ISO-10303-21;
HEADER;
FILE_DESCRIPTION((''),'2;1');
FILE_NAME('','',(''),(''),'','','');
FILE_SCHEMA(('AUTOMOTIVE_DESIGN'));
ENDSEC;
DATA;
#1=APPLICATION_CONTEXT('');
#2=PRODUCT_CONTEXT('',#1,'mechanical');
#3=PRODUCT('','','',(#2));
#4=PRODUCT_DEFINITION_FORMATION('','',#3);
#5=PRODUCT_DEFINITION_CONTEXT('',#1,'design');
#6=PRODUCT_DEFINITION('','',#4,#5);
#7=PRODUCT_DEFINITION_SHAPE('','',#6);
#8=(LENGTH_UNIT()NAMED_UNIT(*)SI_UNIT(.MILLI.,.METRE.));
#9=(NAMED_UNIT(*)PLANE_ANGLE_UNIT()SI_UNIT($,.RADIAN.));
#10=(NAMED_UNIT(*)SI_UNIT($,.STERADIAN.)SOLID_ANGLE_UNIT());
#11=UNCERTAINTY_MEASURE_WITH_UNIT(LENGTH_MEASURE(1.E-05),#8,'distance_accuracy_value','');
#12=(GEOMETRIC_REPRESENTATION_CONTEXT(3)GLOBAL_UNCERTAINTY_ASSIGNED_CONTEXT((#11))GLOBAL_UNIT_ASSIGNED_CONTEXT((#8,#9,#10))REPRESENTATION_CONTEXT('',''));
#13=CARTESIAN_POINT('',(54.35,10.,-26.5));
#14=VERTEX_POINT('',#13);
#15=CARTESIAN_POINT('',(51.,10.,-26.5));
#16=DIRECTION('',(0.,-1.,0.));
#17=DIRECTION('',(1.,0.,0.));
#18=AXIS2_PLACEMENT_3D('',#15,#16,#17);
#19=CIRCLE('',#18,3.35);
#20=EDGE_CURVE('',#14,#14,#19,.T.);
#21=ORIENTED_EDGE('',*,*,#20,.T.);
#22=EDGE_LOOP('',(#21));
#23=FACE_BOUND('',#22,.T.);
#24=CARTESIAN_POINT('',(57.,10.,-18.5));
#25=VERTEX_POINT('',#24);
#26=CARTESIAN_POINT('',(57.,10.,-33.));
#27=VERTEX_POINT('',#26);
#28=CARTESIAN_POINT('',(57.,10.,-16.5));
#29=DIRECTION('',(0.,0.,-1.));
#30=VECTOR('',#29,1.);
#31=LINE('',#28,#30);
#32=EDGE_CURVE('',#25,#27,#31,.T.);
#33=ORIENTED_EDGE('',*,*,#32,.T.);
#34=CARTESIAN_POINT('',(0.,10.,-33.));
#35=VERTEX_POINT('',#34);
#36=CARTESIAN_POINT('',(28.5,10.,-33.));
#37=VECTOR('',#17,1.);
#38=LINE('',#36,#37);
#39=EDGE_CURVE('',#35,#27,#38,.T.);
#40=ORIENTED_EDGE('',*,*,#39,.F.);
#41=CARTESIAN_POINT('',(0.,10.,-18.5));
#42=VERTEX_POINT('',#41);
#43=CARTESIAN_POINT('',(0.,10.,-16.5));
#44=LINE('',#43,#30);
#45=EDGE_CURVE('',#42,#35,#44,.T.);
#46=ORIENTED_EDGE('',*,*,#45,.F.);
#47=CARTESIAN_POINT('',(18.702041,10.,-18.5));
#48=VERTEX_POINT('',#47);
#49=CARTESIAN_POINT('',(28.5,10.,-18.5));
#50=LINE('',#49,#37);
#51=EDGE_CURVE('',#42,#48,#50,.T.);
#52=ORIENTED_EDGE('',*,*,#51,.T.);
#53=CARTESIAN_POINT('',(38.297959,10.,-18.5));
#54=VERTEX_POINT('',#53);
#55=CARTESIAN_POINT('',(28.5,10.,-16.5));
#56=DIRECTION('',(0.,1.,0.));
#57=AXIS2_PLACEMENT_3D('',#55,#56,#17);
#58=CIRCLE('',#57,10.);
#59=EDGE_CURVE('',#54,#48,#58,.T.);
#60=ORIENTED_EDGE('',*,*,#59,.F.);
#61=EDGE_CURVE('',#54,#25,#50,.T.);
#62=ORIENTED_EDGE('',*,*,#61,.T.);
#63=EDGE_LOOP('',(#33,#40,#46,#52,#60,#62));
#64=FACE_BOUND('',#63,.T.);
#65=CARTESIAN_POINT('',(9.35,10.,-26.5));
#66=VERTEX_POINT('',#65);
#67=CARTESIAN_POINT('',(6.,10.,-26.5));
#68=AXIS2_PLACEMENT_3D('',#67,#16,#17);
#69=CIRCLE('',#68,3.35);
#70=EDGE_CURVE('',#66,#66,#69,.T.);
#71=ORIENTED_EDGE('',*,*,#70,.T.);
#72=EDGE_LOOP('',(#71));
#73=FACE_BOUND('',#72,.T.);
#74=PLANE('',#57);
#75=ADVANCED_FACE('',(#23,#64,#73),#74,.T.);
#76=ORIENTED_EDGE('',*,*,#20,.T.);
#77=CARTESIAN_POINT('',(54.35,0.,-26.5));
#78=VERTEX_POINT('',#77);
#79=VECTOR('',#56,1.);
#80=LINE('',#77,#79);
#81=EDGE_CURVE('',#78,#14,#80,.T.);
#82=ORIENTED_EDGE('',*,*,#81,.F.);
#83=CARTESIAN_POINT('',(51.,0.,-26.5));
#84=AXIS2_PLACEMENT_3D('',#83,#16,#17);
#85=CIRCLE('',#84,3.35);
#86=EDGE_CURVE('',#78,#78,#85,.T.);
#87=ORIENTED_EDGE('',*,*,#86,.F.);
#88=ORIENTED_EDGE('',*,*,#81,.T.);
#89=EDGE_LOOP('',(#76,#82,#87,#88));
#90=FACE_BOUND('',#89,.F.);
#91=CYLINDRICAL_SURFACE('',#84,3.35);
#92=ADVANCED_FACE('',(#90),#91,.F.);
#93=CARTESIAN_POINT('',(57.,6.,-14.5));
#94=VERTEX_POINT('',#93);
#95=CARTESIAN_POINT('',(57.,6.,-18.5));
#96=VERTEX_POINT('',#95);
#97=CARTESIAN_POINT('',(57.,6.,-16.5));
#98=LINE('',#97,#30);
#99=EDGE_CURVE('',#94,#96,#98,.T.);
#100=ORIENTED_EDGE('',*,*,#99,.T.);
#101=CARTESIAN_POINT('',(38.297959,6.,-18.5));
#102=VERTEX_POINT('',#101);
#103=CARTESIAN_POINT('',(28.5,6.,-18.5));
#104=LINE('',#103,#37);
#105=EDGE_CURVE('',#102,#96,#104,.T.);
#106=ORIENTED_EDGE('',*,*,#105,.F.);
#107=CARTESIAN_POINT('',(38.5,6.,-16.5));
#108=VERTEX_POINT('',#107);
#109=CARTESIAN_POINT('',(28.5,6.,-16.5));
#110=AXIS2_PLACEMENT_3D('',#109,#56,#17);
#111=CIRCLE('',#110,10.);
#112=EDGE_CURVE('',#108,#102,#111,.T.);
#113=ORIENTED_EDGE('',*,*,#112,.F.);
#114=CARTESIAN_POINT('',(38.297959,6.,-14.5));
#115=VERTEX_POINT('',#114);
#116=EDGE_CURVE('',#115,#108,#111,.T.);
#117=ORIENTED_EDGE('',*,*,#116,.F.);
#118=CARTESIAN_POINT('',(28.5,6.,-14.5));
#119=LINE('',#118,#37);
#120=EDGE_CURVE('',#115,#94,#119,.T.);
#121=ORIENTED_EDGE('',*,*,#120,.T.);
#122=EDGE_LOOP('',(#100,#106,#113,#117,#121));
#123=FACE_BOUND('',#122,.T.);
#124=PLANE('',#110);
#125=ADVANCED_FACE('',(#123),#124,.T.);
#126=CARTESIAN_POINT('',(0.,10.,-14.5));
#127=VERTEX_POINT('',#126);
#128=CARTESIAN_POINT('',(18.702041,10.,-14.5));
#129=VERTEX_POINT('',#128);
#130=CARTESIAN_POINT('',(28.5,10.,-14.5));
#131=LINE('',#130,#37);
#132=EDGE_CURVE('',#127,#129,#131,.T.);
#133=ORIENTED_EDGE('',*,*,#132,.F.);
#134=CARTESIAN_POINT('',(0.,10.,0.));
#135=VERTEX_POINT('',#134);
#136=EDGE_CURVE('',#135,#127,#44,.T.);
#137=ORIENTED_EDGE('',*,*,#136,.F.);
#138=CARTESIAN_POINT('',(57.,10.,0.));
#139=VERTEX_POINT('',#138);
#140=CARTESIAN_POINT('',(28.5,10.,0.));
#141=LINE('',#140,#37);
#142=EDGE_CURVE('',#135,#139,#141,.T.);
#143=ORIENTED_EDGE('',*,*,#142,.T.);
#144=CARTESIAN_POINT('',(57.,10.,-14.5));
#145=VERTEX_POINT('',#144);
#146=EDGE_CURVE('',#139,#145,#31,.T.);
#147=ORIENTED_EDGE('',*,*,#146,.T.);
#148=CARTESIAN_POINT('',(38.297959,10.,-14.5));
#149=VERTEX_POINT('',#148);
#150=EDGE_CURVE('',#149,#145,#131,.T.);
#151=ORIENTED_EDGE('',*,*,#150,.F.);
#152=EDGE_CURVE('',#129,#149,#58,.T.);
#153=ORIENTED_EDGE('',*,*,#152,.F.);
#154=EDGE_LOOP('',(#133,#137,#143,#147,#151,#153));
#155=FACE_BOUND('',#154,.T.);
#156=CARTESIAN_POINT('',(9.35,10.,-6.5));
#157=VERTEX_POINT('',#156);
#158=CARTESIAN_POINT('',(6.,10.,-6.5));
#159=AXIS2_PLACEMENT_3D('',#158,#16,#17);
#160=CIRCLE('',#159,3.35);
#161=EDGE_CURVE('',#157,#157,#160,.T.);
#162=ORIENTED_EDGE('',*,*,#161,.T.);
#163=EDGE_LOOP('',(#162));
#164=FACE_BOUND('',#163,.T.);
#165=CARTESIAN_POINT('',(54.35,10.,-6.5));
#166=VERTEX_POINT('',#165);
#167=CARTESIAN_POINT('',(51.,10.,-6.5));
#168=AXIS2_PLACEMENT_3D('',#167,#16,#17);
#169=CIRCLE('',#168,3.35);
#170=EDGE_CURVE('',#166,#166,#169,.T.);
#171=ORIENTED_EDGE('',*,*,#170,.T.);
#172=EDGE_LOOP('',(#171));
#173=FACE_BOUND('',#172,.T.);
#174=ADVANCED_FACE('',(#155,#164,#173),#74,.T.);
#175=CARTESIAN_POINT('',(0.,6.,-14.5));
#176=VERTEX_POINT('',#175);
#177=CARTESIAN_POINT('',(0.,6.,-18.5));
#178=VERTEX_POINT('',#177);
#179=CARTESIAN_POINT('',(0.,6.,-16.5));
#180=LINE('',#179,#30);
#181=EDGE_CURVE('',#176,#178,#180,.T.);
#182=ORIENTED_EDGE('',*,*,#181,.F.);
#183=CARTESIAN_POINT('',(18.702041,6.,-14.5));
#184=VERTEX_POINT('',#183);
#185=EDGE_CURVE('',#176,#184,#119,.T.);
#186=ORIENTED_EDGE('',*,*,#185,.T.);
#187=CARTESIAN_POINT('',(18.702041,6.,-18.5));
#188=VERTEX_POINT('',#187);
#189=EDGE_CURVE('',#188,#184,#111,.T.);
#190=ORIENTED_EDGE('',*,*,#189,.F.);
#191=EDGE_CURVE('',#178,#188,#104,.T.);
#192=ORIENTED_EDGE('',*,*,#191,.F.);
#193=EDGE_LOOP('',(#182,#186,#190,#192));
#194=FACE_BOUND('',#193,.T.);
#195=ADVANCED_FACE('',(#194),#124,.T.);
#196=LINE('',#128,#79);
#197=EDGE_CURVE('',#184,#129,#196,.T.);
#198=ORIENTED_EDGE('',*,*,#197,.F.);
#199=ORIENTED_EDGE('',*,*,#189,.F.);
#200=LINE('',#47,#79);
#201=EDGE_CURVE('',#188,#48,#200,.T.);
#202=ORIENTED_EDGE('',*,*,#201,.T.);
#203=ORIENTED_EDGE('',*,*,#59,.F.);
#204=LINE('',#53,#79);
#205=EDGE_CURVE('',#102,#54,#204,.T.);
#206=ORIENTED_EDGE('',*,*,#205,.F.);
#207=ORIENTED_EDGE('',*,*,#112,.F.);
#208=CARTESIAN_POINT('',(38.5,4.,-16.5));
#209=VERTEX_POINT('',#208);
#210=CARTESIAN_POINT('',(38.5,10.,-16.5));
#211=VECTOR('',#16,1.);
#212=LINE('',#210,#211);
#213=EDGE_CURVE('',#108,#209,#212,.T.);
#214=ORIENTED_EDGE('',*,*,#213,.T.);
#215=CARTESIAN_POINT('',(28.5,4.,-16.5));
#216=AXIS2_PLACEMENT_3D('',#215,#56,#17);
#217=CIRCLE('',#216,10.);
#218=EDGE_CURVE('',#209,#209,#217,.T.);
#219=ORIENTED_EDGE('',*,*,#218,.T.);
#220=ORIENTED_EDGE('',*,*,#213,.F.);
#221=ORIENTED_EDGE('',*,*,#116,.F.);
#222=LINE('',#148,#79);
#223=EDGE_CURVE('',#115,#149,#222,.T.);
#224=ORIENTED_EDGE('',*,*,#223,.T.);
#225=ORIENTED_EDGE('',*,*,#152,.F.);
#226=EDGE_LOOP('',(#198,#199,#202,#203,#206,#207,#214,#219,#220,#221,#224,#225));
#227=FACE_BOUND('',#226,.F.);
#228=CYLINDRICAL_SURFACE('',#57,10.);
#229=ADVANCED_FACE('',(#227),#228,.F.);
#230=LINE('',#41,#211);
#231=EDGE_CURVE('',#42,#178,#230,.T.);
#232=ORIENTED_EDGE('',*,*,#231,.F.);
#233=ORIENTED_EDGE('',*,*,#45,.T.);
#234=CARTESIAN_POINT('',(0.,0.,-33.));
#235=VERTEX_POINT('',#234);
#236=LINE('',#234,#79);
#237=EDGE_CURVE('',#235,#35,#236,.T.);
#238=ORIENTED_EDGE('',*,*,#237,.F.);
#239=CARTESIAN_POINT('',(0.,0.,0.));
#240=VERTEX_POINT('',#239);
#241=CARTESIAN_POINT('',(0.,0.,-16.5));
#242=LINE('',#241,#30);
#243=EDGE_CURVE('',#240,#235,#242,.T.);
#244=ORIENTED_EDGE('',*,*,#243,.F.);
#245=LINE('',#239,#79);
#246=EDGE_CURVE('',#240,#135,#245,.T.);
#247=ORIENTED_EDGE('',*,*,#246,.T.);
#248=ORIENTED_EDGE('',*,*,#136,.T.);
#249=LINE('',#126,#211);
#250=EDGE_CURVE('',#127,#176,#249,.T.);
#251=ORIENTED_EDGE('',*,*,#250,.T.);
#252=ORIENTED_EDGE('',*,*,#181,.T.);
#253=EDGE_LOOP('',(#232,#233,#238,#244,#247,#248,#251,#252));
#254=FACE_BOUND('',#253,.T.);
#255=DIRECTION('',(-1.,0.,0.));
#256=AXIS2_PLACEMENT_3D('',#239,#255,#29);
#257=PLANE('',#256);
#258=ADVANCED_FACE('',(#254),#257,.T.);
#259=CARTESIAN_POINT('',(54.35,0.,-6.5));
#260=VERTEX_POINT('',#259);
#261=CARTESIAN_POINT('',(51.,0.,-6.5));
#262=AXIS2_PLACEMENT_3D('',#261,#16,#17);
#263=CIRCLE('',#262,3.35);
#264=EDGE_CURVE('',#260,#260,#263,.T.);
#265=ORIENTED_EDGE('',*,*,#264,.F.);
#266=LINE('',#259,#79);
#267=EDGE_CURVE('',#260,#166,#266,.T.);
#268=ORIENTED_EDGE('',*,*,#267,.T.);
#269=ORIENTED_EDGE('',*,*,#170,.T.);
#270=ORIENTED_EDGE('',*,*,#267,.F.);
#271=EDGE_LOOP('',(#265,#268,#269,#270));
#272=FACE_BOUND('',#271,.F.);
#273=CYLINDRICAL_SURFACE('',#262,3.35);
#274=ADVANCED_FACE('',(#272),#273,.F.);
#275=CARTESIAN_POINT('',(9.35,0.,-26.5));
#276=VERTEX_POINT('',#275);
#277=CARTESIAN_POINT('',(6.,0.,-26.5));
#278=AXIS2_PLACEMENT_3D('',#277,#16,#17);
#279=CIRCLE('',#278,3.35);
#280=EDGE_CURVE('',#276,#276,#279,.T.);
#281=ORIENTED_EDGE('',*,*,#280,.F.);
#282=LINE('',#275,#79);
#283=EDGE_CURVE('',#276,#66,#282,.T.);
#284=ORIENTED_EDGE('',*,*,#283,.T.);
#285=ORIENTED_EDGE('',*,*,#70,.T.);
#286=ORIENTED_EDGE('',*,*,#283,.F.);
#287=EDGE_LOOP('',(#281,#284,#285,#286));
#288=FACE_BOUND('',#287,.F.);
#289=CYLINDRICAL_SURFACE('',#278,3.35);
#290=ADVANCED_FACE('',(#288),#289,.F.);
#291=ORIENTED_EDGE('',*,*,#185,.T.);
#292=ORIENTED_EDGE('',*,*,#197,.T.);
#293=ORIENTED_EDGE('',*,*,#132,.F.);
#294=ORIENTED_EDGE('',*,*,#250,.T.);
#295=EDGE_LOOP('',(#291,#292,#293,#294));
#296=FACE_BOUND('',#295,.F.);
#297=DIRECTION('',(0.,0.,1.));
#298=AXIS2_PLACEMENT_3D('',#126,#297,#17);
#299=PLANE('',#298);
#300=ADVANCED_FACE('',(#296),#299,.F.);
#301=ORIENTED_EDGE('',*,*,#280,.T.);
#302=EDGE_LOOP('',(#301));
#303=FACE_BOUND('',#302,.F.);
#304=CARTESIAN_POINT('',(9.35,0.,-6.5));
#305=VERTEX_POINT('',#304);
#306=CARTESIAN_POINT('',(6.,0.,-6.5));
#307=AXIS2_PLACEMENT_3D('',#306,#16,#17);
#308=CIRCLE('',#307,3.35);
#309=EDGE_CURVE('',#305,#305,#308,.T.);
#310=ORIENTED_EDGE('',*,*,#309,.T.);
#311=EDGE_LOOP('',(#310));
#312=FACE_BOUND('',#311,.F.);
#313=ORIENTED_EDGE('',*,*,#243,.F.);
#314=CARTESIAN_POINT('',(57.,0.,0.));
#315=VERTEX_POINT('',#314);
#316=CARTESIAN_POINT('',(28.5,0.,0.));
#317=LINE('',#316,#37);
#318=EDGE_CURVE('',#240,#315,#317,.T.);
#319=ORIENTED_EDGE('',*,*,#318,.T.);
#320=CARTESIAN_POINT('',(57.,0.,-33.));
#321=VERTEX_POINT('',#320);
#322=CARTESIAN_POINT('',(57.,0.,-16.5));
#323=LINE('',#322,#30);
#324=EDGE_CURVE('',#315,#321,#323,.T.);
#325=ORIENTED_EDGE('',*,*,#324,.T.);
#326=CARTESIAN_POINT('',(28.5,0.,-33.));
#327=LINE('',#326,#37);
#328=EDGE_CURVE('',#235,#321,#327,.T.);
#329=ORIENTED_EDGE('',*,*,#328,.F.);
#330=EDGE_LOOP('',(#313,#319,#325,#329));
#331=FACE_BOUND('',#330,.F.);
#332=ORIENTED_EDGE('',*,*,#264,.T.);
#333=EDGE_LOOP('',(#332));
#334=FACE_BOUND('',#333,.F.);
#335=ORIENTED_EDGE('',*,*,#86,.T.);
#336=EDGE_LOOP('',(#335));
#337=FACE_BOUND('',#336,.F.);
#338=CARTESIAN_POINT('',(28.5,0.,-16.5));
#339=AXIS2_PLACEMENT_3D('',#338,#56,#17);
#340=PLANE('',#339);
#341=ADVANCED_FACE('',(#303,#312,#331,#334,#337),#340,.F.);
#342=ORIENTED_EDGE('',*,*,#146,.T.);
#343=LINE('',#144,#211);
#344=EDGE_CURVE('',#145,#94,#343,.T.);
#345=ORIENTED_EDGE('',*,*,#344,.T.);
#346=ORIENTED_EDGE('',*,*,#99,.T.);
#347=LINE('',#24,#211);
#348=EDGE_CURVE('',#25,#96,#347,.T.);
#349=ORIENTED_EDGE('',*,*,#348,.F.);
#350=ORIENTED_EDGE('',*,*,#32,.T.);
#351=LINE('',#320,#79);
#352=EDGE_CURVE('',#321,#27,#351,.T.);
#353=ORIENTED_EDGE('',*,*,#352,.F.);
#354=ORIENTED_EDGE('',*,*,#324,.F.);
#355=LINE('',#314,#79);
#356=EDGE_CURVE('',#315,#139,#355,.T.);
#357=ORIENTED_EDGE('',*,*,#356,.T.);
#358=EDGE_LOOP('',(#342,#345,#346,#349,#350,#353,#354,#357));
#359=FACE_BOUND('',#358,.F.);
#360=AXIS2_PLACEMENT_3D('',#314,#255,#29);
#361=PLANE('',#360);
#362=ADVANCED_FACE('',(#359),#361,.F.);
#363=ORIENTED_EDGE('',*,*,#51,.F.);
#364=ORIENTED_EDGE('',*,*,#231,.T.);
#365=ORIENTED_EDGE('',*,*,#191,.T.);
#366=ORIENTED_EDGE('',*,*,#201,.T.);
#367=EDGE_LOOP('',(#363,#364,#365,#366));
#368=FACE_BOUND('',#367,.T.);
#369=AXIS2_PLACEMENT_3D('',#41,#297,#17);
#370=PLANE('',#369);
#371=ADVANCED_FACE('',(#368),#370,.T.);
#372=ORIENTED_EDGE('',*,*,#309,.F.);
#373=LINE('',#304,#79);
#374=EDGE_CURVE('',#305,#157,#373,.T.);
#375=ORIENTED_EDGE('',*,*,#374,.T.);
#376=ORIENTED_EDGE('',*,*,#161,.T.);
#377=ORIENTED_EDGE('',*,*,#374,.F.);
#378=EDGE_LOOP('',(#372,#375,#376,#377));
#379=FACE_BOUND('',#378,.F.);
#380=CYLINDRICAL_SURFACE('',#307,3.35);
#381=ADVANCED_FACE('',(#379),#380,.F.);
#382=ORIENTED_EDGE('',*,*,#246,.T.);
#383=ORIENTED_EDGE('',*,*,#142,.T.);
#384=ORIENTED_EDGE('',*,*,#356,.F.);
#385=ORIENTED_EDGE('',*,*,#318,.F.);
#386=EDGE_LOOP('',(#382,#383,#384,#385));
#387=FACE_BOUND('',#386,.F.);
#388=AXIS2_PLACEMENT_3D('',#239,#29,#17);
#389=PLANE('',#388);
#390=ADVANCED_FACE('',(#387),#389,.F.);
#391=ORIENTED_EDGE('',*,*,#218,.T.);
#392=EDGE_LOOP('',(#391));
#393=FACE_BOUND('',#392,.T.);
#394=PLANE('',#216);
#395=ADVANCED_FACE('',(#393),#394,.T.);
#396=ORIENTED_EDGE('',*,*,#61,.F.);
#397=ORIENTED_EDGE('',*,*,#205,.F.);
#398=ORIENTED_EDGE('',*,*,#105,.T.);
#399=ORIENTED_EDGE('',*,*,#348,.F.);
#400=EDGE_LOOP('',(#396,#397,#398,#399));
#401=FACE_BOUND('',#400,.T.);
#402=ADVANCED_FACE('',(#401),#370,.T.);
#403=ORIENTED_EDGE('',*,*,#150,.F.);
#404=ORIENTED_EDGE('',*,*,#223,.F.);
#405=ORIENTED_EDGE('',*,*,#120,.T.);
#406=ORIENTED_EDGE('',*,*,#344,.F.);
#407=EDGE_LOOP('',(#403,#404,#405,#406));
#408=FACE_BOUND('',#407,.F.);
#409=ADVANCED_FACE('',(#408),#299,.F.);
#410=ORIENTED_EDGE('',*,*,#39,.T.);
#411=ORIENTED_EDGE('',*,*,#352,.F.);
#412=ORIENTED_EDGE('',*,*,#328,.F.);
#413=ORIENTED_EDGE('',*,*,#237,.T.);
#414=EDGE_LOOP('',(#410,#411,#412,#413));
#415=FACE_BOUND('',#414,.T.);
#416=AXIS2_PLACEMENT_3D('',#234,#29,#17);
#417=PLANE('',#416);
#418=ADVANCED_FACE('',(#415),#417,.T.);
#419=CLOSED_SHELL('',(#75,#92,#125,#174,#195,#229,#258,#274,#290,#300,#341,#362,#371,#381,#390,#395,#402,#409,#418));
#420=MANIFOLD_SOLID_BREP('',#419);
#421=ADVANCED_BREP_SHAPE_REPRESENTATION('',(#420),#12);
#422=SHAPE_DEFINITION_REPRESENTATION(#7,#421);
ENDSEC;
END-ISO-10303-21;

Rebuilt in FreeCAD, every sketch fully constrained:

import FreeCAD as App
import Part
import Sketcher
from FreeCAD import Vector


def add_polygon(sketch, points):
    """Adds a closed chain of lines whose ends are joined by coincident constraints."""
    first, n = sketch.GeometryCount, len(points)
    for a, b in zip(points, points[1:] + points[:1]):
        sketch.addGeometry(Part.LineSegment(App.Vector(*a, 0), App.Vector(*b, 0)), False)
    for i in range(n):
        sketch.addConstraint(Sketcher.Constraint("Coincident", first + i, 2, first + (i + 1) % n, 1))

doc = App.newDocument("Part")
params = doc.addObject("Spreadsheet::Sheet", "Params")
for row, (alias, value) in enumerate([
    ("sketch1_width", "57 mm"),
    ("sketch1_height", "33 mm"),
    ("pad1_length", "10 mm"),
    ("sketch2_diameter", "6.7 mm"),
    ("sketch3_diameter", "6.7 mm"),
    ("sketch4_diameter", "6.7 mm"),
    ("sketch5_diameter", "6.7 mm"),
    ("sketch6_width", "57 mm"),
    ("sketch6_height", "4 mm"),
    ("pocket5_length", "4 mm"),
    ("sketch7_diameter", "20 mm"),
    ("pocket6_length", "6 mm"),
], start=1):
    params.set(f"A{row}", alias)
    params.set(f"B{row}", "=" + value)
    params.setAlias(f"B{row}", alias)

body = doc.addObject("PartDesign::Body", "Body")

# Sketch on XZ plane
sketch1 = body.newObject("Sketcher::SketchObject", "Sketch")
sketch1.AttachmentSupport = (doc.getObject("XZ_Plane"), [""])
sketch1.MapMode = "FlatFace"
add_polygon(sketch1, [(0, -33), (0, 0), (57, 0), (57, -33)])  # lines 0-3
sketch1.addConstraint([
    Sketcher.Constraint("Vertical", 0),
    Sketcher.Constraint("Horizontal", 1),
    Sketcher.Constraint("Vertical", 2),
    Sketcher.Constraint("Horizontal", 3),
    Sketcher.Constraint("Coincident", 0, 2, -1, 1),
    Sketcher.Constraint("DistanceX", 1, 1, 1, 2, 57.0),
    Sketcher.Constraint("DistanceY", 0, 1, 0, 2, 33.0),
])
sketch1.setExpression("Constraints[9]", "Params.sketch1_width")
sketch1.setExpression("Constraints[10]", "Params.sketch1_height")
pad1 = body.newObject("PartDesign::Pad", "Pad")
pad1.Profile = sketch1
pad1.setExpression("Length", "Params.pad1_length")
pad1.Reversed = True

# Sketch on XZ plane
sketch2 = body.newObject("Sketcher::SketchObject", "Sketch001")
sketch2.AttachmentSupport = (doc.getObject("XZ_Plane"), [""])
sketch2.MapMode = "FlatFace"
sketch2.addGeometry(Part.Circle(Vector(6, -6.5, 0), Vector(0, 0, 1), 3.4), False)
sketch2.addConstraint([
    Sketcher.Constraint("Diameter", 0, 6.7),
    Sketcher.Constraint("DistanceX", -1, 1, 0, 3, 6.0),
    Sketcher.Constraint("DistanceY", 0, 3, -1, 1, 6.5),
])
sketch2.setExpression("Constraints[0]", "Params.sketch2_diameter")
pocket1 = body.newObject("PartDesign::Pocket", "Pocket")
pocket1.Profile = sketch2
pocket1.Type = "ThroughAll"

# Sketch on XZ plane
sketch3 = body.newObject("Sketcher::SketchObject", "Sketch002")
sketch3.AttachmentSupport = (doc.getObject("XZ_Plane"), [""])
sketch3.MapMode = "FlatFace"
sketch3.addGeometry(Part.Circle(Vector(51, -26.5, 0), Vector(0, 0, 1), 3.4), False)
sketch3.addConstraint([
    Sketcher.Constraint("Diameter", 0, 6.7),
    Sketcher.Constraint("DistanceX", -1, 1, 0, 3, 51.0),
    Sketcher.Constraint("DistanceY", 0, 3, -1, 1, 26.5),
])
sketch3.setExpression("Constraints[0]", "Params.sketch3_diameter")
pocket2 = body.newObject("PartDesign::Pocket", "Pocket001")
pocket2.Profile = sketch3
pocket2.Type = "ThroughAll"

# Sketch on XZ plane
sketch4 = body.newObject("Sketcher::SketchObject", "Sketch003")
sketch4.AttachmentSupport = (doc.getObject("XZ_Plane"), [""])
sketch4.MapMode = "FlatFace"
sketch4.addGeometry(Part.Circle(Vector(6, -26.5, 0), Vector(0, 0, 1), 3.4), False)
sketch4.addConstraint([
    Sketcher.Constraint("Diameter", 0, 6.7),
    Sketcher.Constraint("DistanceX", -1, 1, 0, 3, 6.0),
    Sketcher.Constraint("DistanceY", 0, 3, -1, 1, 26.5),
])
sketch4.setExpression("Constraints[0]", "Params.sketch4_diameter")
pocket3 = body.newObject("PartDesign::Pocket", "Pocket002")
pocket3.Profile = sketch4
pocket3.Type = "ThroughAll"

# Sketch on XZ plane
sketch5 = body.newObject("Sketcher::SketchObject", "Sketch004")
sketch5.AttachmentSupport = (doc.getObject("XZ_Plane"), [""])
sketch5.MapMode = "FlatFace"
sketch5.addGeometry(Part.Circle(Vector(51, -6.5, 0), Vector(0, 0, 1), 3.4), False)
sketch5.addConstraint([
    Sketcher.Constraint("Diameter", 0, 6.7),
    Sketcher.Constraint("DistanceX", -1, 1, 0, 3, 51.0),
    Sketcher.Constraint("DistanceY", 0, 3, -1, 1, 6.5),
])
sketch5.setExpression("Constraints[0]", "Params.sketch5_diameter")
pocket4 = body.newObject("PartDesign::Pocket", "Pocket003")
pocket4.Profile = sketch5
pocket4.Type = "ThroughAll"

# Sketch on XZ plane
sketch6 = body.newObject("Sketcher::SketchObject", "Sketch005")
sketch6.AttachmentSupport = (doc.getObject("XZ_Plane"), [""])
sketch6.MapMode = "FlatFace"
sketch6.AttachmentOffset = App.Placement(Vector(0, 0, -10), App.Rotation())
add_polygon(sketch6, [(0, -18.5), (0, -14.5), (57, -14.5), (57, -18.5)])  # lines 0-3
sketch6.addConstraint([
    Sketcher.Constraint("Vertical", 0),
    Sketcher.Constraint("Horizontal", 1),
    Sketcher.Constraint("Vertical", 2),
    Sketcher.Constraint("Horizontal", 3),
    Sketcher.Constraint("PointOnObject", 0, 2, -2),
    Sketcher.Constraint("DistanceX", 1, 1, 1, 2, 57.0),
    Sketcher.Constraint("DistanceY", 0, 1, 0, 2, 4.0),
    Sketcher.Constraint("DistanceY", 0, 2, -1, 1, 14.5),
])
sketch6.setExpression("Constraints[9]", "Params.sketch6_width")
sketch6.setExpression("Constraints[10]", "Params.sketch6_height")
pocket5 = body.newObject("PartDesign::Pocket", "Pocket004")
pocket5.Profile = sketch6
pocket5.setExpression("Length", "Params.pocket5_length")
pocket5.Reversed = True

# Sketch on XZ plane
sketch7 = body.newObject("Sketcher::SketchObject", "Sketch006")
sketch7.AttachmentSupport = (doc.getObject("XZ_Plane"), [""])
sketch7.MapMode = "FlatFace"
sketch7.AttachmentOffset = App.Placement(Vector(0, 0, -10), App.Rotation())
sketch7.addGeometry(Part.Circle(Vector(28, -16, 0), Vector(0, 0, 1), 10), False)
sketch7.addConstraint([
    Sketcher.Constraint("Diameter", 0, 20.0),
    Sketcher.Constraint("DistanceX", -1, 1, 0, 3, 28.5),
    Sketcher.Constraint("DistanceY", 0, 3, -1, 1, 16.5),
])
sketch7.setExpression("Constraints[0]", "Params.sketch7_diameter")
pocket6 = body.newObject("PartDesign::Pocket", "Pocket005")
pocket6.Profile = sketch7
pocket6.setExpression("Length", "Params.pocket6_length")
pocket6.Reversed = True

doc.recompute()
